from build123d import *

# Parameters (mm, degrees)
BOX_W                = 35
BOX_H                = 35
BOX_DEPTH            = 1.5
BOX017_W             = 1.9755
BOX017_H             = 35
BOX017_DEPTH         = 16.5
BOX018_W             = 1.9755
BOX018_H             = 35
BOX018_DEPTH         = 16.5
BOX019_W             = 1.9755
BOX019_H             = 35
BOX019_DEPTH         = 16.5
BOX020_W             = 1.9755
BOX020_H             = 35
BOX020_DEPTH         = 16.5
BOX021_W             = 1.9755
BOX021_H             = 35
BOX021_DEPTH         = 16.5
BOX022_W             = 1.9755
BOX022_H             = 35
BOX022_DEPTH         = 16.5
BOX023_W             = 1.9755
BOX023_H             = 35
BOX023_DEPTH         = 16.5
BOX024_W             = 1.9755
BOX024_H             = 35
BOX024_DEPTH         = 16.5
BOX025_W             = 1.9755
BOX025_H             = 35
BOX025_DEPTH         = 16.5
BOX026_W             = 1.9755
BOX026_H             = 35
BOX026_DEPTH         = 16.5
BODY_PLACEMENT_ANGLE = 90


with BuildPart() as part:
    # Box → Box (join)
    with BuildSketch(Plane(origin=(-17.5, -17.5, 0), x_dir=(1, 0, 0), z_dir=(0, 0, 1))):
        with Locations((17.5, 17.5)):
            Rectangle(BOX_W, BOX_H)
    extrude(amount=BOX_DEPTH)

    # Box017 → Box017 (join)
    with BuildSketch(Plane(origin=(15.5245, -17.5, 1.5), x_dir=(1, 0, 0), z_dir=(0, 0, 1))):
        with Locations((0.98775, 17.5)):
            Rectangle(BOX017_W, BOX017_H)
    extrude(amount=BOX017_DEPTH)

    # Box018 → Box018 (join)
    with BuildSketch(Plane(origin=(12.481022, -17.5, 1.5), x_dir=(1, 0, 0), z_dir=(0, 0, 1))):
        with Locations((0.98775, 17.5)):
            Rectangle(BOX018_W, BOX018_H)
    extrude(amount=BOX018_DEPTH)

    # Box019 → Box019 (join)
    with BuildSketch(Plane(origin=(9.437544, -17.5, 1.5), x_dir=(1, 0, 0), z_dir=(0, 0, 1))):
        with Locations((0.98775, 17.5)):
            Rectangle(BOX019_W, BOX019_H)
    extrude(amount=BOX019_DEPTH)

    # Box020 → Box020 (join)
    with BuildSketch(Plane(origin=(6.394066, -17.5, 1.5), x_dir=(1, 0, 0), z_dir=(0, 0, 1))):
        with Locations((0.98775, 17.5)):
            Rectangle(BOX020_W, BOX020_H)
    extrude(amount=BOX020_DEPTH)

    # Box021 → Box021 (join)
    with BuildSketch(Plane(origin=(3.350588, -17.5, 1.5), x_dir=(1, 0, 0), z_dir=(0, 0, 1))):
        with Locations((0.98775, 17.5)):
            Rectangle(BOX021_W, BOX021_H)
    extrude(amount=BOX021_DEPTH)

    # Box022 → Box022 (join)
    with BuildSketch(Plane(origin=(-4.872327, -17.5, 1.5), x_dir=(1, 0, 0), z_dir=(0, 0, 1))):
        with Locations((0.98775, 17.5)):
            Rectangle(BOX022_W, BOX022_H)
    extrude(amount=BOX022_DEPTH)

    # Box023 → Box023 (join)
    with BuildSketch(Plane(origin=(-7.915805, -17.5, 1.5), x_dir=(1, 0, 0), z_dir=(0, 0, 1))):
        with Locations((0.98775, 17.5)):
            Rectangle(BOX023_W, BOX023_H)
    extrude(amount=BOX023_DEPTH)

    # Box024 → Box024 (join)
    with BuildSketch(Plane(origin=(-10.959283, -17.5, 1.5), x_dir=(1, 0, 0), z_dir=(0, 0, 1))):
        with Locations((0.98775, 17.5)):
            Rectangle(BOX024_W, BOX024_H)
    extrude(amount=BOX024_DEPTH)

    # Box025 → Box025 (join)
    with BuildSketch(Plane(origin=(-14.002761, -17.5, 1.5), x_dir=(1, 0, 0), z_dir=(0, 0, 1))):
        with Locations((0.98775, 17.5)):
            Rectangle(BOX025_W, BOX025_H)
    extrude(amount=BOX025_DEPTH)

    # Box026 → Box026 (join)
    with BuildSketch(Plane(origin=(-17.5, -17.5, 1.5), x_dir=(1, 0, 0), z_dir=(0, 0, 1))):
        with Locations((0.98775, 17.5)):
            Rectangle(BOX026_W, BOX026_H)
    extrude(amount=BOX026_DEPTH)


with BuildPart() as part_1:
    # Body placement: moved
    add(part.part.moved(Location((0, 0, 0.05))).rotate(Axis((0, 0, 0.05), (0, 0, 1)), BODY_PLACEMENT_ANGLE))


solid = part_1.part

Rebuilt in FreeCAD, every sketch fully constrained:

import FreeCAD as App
import Part
import Sketcher
from FreeCAD import Vector
Q = App.Units.Quantity


def add_polygon(sketch, points):
    """Adds a closed chain of lines whose ends are joined by coincident constraints."""
    first, n = sketch.GeometryCount, len(points)
    for a, b in zip(points, points[1:] + points[:1]):
        sketch.addGeometry(Part.LineSegment(App.Vector(*a, 0), App.Vector(*b, 0)), False)
    for i in range(n):
        sketch.addConstraint(Sketcher.Constraint("Coincident", first + i, 2, first + (i + 1) % n, 1))

doc = App.newDocument("Part")
body = doc.addObject("PartDesign::Body", "Body")

sketch1 = body.newObject("Sketcher::SketchObject", "Sketch")
sketch1.AttachmentSupport = (doc.getObject("XY_Plane"), [""])
sketch1.MapMode = "FlatFace"
add_polygon(sketch1, [(-18, 18), (-18, -18), (18, -18), (18, 18)])
sketch1.addConstraint(Sketcher.Constraint("Vertical", 0))
sketch1.addConstraint(Sketcher.Constraint("Horizontal", 1))
sketch1.addConstraint(Sketcher.Constraint("Vertical", 2))
sketch1.addConstraint(Sketcher.Constraint("Horizontal", 3))
sketch1.addConstraint(Sketcher.Constraint("Symmetric", 0, 2, 2, 2, -1, 1))
sketch1.addConstraint(Sketcher.Constraint("Equal", 3, 0))
sketch1.addConstraint(Sketcher.Constraint("DistanceX", 1, 1, 1, 2, Q("35 mm")))
pad1 = body.newObject("PartDesign::Pad", "Pad")
pad1.Profile = sketch1
pad1.Length = 1.5

sketch2 = body.newObject("Sketcher::SketchObject", "Sketch001")
sketch2.AttachmentSupport = (doc.getObject("XY_Plane"), [""])
sketch2.MapMode = "FlatFace"
sketch2.AttachmentOffset = App.Placement(Vector(0, 0, 1.5), App.Rotation())
add_polygon(sketch2, [(15.5, 17.5), (15.5, -17.5), (17.5, -17.5), (17.5, 17.5)])
sketch2.addConstraint(Sketcher.Constraint("Vertical", 0))
sketch2.addConstraint(Sketcher.Constraint("Horizontal", 1))
sketch2.addConstraint(Sketcher.Constraint("Vertical", 2))
sketch2.addConstraint(Sketcher.Constraint("Horizontal", 3))
sketch2.addConstraint(Sketcher.Constraint("DistanceY", 0, 2, 0, 1, Q("35 mm")))
sketch2.addConstraint(Sketcher.Constraint("DistanceY", 0, 2, -1, 1, Q("17.5 mm")))
sketch2.addConstraint(Sketcher.Constraint("DistanceX", -1, 1, 1, 2, Q("17.5 mm")))
sketch2.addConstraint(Sketcher.Constraint("DistanceX", 1, 1, 1, 2, Q("1.9755 mm")))
pad2 = body.newObject("PartDesign::Pad", "Pad001")
pad2.Profile = sketch2
pad2.Length = 16.5

sketch3 = body.newObject("Sketcher::SketchObject", "Sketch002")
sketch3.AttachmentSupport = (doc.getObject("XY_Plane"), [""])
sketch3.MapMode = "FlatFace"
sketch3.AttachmentOffset = App.Placement(Vector(0, 0, 1.5), App.Rotation())
add_polygon(sketch3, [(12.5, 17.5), (12.5, -17.5), (14.5, -17.5), (14.5, 17.5)])
sketch3.addConstraint(Sketcher.Constraint("Vertical", 0))
sketch3.addConstraint(Sketcher.Constraint("Horizontal", 1))
sketch3.addConstraint(Sketcher.Constraint("Vertical", 2))
sketch3.addConstraint(Sketcher.Constraint("Horizontal", 3))
sketch3.addConstraint(Sketcher.Constraint("DistanceY", 0, 2, 0, 1, Q("35 mm")))
sketch3.addConstraint(Sketcher.Constraint("DistanceY", 0, 2, -1, 1, Q("17.5 mm")))
sketch3.addConstraint(Sketcher.Constraint("DistanceX", 1, 1, 1, 2, Q("1.9755 mm")))
sketch3.addConstraint(Sketcher.Constraint("DistanceX", -1, 1, 0, 2, Q("12.481022 mm")))
pad3 = body.newObject("PartDesign::Pad", "Pad002")
pad3.Profile = sketch3
pad3.Length = 16.5

sketch4 = body.newObject("Sketcher::SketchObject", "Sketch003")
sketch4.AttachmentSupport = (doc.getObject("XY_Plane"), [""])
sketch4.MapMode = "FlatFace"
sketch4.AttachmentOffset = App.Placement(Vector(0, 0, 1.5), App.Rotation())
add_polygon(sketch4, [(9.4, 17.5), (9.4, -17.5), (11.4, -17.5), (11.4, 17.5)])
sketch4.addConstraint(Sketcher.Constraint("Vertical", 0))
sketch4.addConstraint(Sketcher.Constraint("Horizontal", 1))
sketch4.addConstraint(Sketcher.Constraint("Vertical", 2))
sketch4.addConstraint(Sketcher.Constraint("Horizontal", 3))
sketch4.addConstraint(Sketcher.Constraint("DistanceY", 0, 2, 0, 1, Q("35 mm")))
sketch4.addConstraint(Sketcher.Constraint("DistanceY", 0, 2, -1, 1, Q("17.5 mm")))
sketch4.addConstraint(Sketcher.Constraint("DistanceX", 1, 1, 1, 2, Q("1.9755 mm")))
sketch4.addConstraint(Sketcher.Constraint("DistanceX", -1, 1, 0, 2, Q("9.437544 mm")))
pad4 = body.newObject("PartDesign::Pad", "Pad003")
pad4.Profile = sketch4
pad4.Length = 16.5

sketch5 = body.newObject("Sketcher::SketchObject", "Sketch004")
sketch5.AttachmentSupport = (doc.getObject("XY_Plane"), [""])
sketch5.MapMode = "FlatFace"
sketch5.AttachmentOffset = App.Placement(Vector(0, 0, 1.5), App.Rotation())
add_polygon(sketch5, [(6.4, 17.5), (6.4, -17.5), (8.4, -17.5), (8.4, 17.5)])
sketch5.addConstraint(Sketcher.Constraint("Vertical", 0))
sketch5.addConstraint(Sketcher.Constraint("Horizontal", 1))
sketch5.addConstraint(Sketcher.Constraint("Vertical", 2))
sketch5.addConstraint(Sketcher.Constraint("Horizontal", 3))
sketch5.addConstraint(Sketcher.Constraint("DistanceY", 0, 2, 0, 1, Q("35 mm")))
sketch5.addConstraint(Sketcher.Constraint("DistanceY", 0, 2, -1, 1, Q("17.5 mm")))
sketch5.addConstraint(Sketcher.Constraint("DistanceX", 1, 1, 1, 2, Q("1.9755 mm")))
sketch5.addConstraint(Sketcher.Constraint("DistanceX", -1, 1, 0, 2, Q("6.394066 mm")))
pad5 = body.newObject("PartDesign::Pad", "Pad004")
pad5.Profile = sketch5
pad5.Length = 16.5

sketch6 = body.newObject("Sketcher::SketchObject", "Sketch005")
sketch6.AttachmentSupport = (doc.getObject("XY_Plane"), [""])
sketch6.MapMode = "FlatFace"
sketch6.AttachmentOffset = App.Placement(Vector(0, 0, 1.5), App.Rotation())
add_polygon(sketch6, [(3.4, 17.5), (3.4, -17.5), (5.3, -17.5), (5.3, 17.5)])
sketch6.addConstraint(Sketcher.Constraint("Vertical", 0))
sketch6.addConstraint(Sketcher.Constraint("Horizontal", 1))
sketch6.addConstraint(Sketcher.Constraint("Vertical", 2))
sketch6.addConstraint(Sketcher.Constraint("Horizontal", 3))
sketch6.addConstraint(Sketcher.Constraint("DistanceY", 0, 2, 0, 1, Q("35 mm")))
sketch6.addConstraint(Sketcher.Constraint("DistanceY", 0, 2, -1, 1, Q("17.5 mm")))
sketch6.addConstraint(Sketcher.Constraint("DistanceX", 1, 1, 1, 2, Q("1.9755 mm")))
sketch6.addConstraint(Sketcher.Constraint("DistanceX", -1, 1, 0, 2, Q("3.350588 mm")))
pad6 = body.newObject("PartDesign::Pad", "Pad005")
pad6.Profile = sketch6
pad6.Length = 16.5

sketch7 = body.newObject("Sketcher::SketchObject", "Sketch006")
sketch7.AttachmentSupport = (doc.getObject("XY_Plane"), [""])
sketch7.MapMode = "FlatFace"
sketch7.AttachmentOffset = App.Placement(Vector(0, 0, 1.5), App.Rotation())
add_polygon(sketch7, [(-4.9, 17.5), (-4.9, -17.5), (-2.9, -17.5), (-2.9, 17.5)])
sketch7.addConstraint(Sketcher.Constraint("Vertical", 0))
sketch7.addConstraint(Sketcher.Constraint("Horizontal", 1))
sketch7.addConstraint(Sketcher.Constraint("Vertical", 2))
sketch7.addConstraint(Sketcher.Constraint("Horizontal", 3))
sketch7.addConstraint(Sketcher.Constraint("DistanceY", 0, 2, 0, 1, Q("35 mm")))
sketch7.addConstraint(Sketcher.Constraint("DistanceY", 0, 2, -1, 1, Q("17.5 mm")))
sketch7.addConstraint(Sketcher.Constraint("DistanceX", 1, 1, 1, 2, Q("1.9755 mm")))
sketch7.addConstraint(Sketcher.Constraint("DistanceX", 0, 2, -1, 1, Q("4.872327 mm")))
pad7 = body.newObject("PartDesign::Pad", "Pad006")
pad7.Profile = sketch7
pad7.Length = 16.5

sketch8 = body.newObject("Sketcher::SketchObject", "Sketch007")
sketch8.AttachmentSupport = (doc.getObject("XY_Plane"), [""])
sketch8.MapMode = "FlatFace"
sketch8.AttachmentOffset = App.Placement(Vector(0, 0, 1.5), App.Rotation())
add_polygon(sketch8, [(-7.9, 17.5), (-7.9, -17.5), (-5.9, -17.5), (-5.9, 17.5)])
sketch8.addConstraint(Sketcher.Constraint("Vertical", 0))
sketch8.addConstraint(Sketcher.Constraint("Horizontal", 1))
sketch8.addConstraint(Sketcher.Constraint("Vertical", 2))
sketch8.addConstraint(Sketcher.Constraint("Horizontal", 3))
sketch8.addConstraint(Sketcher.Constraint("DistanceY", 0, 2, 0, 1, Q("35 mm")))
sketch8.addConstraint(Sketcher.Constraint("DistanceY", 0, 2, -1, 1, Q("17.5 mm")))
sketch8.addConstraint(Sketcher.Constraint("DistanceX", 1, 1, 1, 2, Q("1.9755 mm")))
sketch8.addConstraint(Sketcher.Constraint("DistanceX", 0, 2, -1, 1, Q("7.915805 mm")))
pad8 = body.newObject("PartDesign::Pad", "Pad007")
pad8.Profile = sketch8
pad8.Length = 16.5

sketch9 = body.newObject("Sketcher::SketchObject", "Sketch008")
sketch9.AttachmentSupport = (doc.getObject("XY_Plane"), [""])
sketch9.MapMode = "FlatFace"
sketch9.AttachmentOffset = App.Placement(Vector(0, 0, 1.5), App.Rotation())
add_polygon(sketch9, [(-11, 17.5), (-11, -17.5), (-9, -17.5), (-9, 17.5)])
sketch9.addConstraint(Sketcher.Constraint("Vertical", 0))
sketch9.addConstraint(Sketcher.Constraint("Horizontal", 1))
sketch9.addConstraint(Sketcher.Constraint("Vertical", 2))
sketch9.addConstraint(Sketcher.Constraint("Horizontal", 3))
sketch9.addConstraint(Sketcher.Constraint("DistanceY", 0, 2, 0, 1, Q("35 mm")))
sketch9.addConstraint(Sketcher.Constraint("DistanceY", 0, 2, -1, 1, Q("17.5 mm")))
sketch9.addConstraint(Sketcher.Constraint("DistanceX", 1, 1, 1, 2, Q("1.9755 mm")))
sketch9.addConstraint(Sketcher.Constraint("DistanceX", 0, 2, -1, 1, Q("10.959283 mm")))
pad9 = body.newObject("PartDesign::Pad", "Pad008")
pad9.Profile = sketch9
pad9.Length = 16.5

sketch10 = body.newObject("Sketcher::SketchObject", "Sketch009")
sketch10.AttachmentSupport = (doc.getObject("XY_Plane"), [""])
sketch10.MapMode = "FlatFace"
sketch10.AttachmentOffset = App.Placement(Vector(0, 0, 1.5), App.Rotation())
add_polygon(sketch10, [(-14, 17.5), (-14, -17.5), (-12, -17.5), (-12, 17.5)])
sketch10.addConstraint(Sketcher.Constraint("Vertical", 0))
sketch10.addConstraint(Sketcher.Constraint("Horizontal", 1))
sketch10.addConstraint(Sketcher.Constraint("Vertical", 2))
sketch10.addConstraint(Sketcher.Constraint("Horizontal", 3))
sketch10.addConstraint(Sketcher.Constraint("DistanceY", 0, 2, 0, 1, Q("35 mm")))
sketch10.addConstraint(Sketcher.Constraint("DistanceY", 0, 2, -1, 1, Q("17.5 mm")))
sketch10.addConstraint(Sketcher.Constraint("DistanceX", 1, 1, 1, 2, Q("1.9755 mm")))
sketch10.addConstraint(Sketcher.Constraint("DistanceX", 0, 2, -1, 1, Q("14.002761 mm")))
pad10 = body.newObject("PartDesign::Pad", "Pad009")
pad10.Profile = sketch10
pad10.Length = 16.5

sketch11 = body.newObject("Sketcher::SketchObject", "Sketch010")
sketch11.AttachmentSupport = (doc.getObject("XY_Plane"), [""])
sketch11.MapMode = "FlatFace"
sketch11.AttachmentOffset = App.Placement(Vector(0, 0, 1.5), App.Rotation())
add_polygon(sketch11, [(-17.5, 17.5), (-17.5, -17.5), (-15.5, -17.5), (-15.5, 17.5)])
sketch11.addConstraint(Sketcher.Constraint("Vertical", 0))
sketch11.addConstraint(Sketcher.Constraint("Horizontal", 1))
sketch11.addConstraint(Sketcher.Constraint("Vertical", 2))
sketch11.addConstraint(Sketcher.Constraint("Horizontal", 3))
sketch11.addConstraint(Sketcher.Constraint("DistanceY", 0, 2, 0, 1, Q("35 mm")))
sketch11.addConstraint(Sketcher.Constraint("DistanceX", 0, 2, -1, 1, Q("17.5 mm")))
sketch11.addConstraint(Sketcher.Constraint("DistanceY", 0, 2, -1, 1, Q("17.5 mm")))
sketch11.addConstraint(Sketcher.Constraint("DistanceX", 1, 1, 1, 2, Q("1.9755 mm")))
pad11 = body.newObject("PartDesign::Pad", "Pad010")
pad11.Profile = sketch11
pad11.Length = 16.5
body2 = doc.addObject("PartDesign::Body", "Body001")
doc.recompute()

body.Placement = App.Placement(Vector(0, 0, 0.05), App.Rotation(Vector(0, 0, 1), 90))
boolean = body2.newObject("PartDesign::Boolean", "Boolean")
boolean.Type = "Fuse"
boolean.addObjects([body])

doc.recompute()
